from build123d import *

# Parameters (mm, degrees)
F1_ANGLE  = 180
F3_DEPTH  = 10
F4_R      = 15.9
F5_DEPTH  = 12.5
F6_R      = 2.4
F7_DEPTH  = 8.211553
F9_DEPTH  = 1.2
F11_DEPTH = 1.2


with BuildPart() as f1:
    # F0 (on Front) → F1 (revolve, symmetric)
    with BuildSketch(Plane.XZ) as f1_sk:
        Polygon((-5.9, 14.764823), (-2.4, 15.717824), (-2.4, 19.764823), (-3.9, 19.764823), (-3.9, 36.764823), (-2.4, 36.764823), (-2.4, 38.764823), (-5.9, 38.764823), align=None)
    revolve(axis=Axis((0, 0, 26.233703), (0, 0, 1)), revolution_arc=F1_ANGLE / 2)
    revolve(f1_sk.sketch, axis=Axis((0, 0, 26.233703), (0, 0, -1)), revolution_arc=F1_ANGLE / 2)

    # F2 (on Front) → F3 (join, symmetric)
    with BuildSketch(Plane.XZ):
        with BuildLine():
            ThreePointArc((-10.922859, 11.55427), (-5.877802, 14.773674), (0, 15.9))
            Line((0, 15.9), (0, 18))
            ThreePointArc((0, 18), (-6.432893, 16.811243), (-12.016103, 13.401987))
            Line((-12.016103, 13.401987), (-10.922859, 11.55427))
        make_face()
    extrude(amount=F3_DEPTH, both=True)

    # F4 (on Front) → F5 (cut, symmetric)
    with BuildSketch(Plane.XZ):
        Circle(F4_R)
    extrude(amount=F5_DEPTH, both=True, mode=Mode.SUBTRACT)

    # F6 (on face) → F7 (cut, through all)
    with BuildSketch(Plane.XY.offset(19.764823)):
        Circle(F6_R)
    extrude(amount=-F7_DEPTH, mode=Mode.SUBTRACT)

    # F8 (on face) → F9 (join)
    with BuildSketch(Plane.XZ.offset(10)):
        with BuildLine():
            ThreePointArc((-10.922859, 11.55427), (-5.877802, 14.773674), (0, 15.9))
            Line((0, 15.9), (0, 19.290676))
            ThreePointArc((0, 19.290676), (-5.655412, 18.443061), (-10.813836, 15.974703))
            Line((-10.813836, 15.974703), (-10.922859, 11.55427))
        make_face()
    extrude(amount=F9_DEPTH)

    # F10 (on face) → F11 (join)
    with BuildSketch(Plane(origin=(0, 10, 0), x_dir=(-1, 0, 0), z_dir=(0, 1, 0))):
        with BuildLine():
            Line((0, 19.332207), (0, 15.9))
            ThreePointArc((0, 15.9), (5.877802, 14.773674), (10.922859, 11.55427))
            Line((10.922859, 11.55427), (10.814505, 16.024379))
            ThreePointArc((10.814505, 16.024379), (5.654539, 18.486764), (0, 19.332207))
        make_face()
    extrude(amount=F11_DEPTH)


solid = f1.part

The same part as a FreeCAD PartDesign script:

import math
import FreeCAD as App
import Part
import Sketcher

doc = App.newDocument("Part")
params = doc.addObject("Spreadsheet::Sheet", "Params")
for row, (alias, value) in enumerate([
    ("sketch1_height", "17 mm"),
    ("sketch1_height2", "2 mm"),
    ("sketch1_height3", "24 mm"),
    ("sketch1_width", "1.5 mm"),
    ("sketch1_width2", "3.5 mm"),
    ("revolution_angle", "90 deg"),
    ("sketch2_height", "17 mm"),
    ("sketch2_height2", "2 mm"),
    ("sketch2_height3", "24 mm"),
    ("sketch2_width", "1.5 mm"),
    ("sketch2_width2", "3.5 mm"),
    ("revolution2_angle", "90 deg"),
    ("sketch3_radius", "15.900001 mm"),
    ("sketch3_height", "2.1 mm"),
    ("pad1_length", "20 mm"),
    ("sketch4_diameter", "31.8 mm"),
    ("pocket1_length", "25 mm"),
    ("sketch5_diameter", "4.8 mm"),
    ("sketch6_radius", "15.900001 mm"),
    ("pad2_length", "1.2 mm"),
    ("sketch7_radius", "15.900001 mm"),
    ("pad3_length", "1.2 mm"),
], start=1):
    params.set(f"A{row}", alias)
    params.set(f"B{row}", "=" + value)
    params.setAlias(f"B{row}", alias)

body = doc.addObject("PartDesign::Body", "Body")

# Sketch on XZ plane
sketch1 = body.newObject("Sketcher::SketchObject", "Sketch")
sketch1.AttachmentSupport = (doc.getObject("XZ_Plane"), [""])
sketch1.MapMode = "FlatFace"
sketch1.addGeometry([
    Part.LineSegment(App.Vector(-5.9, 14.764823, 0), App.Vector(-2.4, 15.717824, 0)),  # 0
    Part.LineSegment(App.Vector(-2.4, 15.717824, 0), App.Vector(-2.4, 19.764823, 0)),  # 1
    Part.LineSegment(App.Vector(-2.4, 19.764823, 0), App.Vector(-3.9, 19.764823, 0)),  # 2
    Part.LineSegment(App.Vector(-3.9, 19.764823, 0), App.Vector(-3.9, 36.764823, 0)),  # 3
    Part.LineSegment(App.Vector(-3.9, 36.764823, 0), App.Vector(-2.4, 36.764823, 0)),  # 4
    Part.LineSegment(App.Vector(-2.4, 36.764823, 0), App.Vector(-2.4, 38.764823, 0)),  # 5
    Part.LineSegment(App.Vector(-2.4, 38.764823, 0), App.Vector(-5.9, 38.764823, 0)),  # 6
    Part.LineSegment(App.Vector(-5.9, 38.764823, 0), App.Vector(-5.9, 14.764823, 0)),  # 7
], False)
sketch1.addConstraint([
    Sketcher.Constraint("Coincident", 0, 2, 1, 1),
    Sketcher.Constraint("Coincident", 1, 2, 2, 1),
    Sketcher.Constraint("Coincident", 2, 2, 3, 1),
    Sketcher.Constraint("Coincident", 3, 2, 4, 1),
    Sketcher.Constraint("Coincident", 4, 2, 5, 1),
    Sketcher.Constraint("Coincident", 5, 2, 6, 1),
    Sketcher.Constraint("Coincident", 6, 2, 7, 1),
    Sketcher.Constraint("Coincident", 7, 2, 0, 1),
    Sketcher.Constraint("Vertical", 1),
    Sketcher.Constraint("Horizontal", 2),
    Sketcher.Constraint("Vertical", 3),
    Sketcher.Constraint("Horizontal", 4),
    Sketcher.Constraint("Vertical", 5),
    Sketcher.Constraint("Horizontal", 6),
    Sketcher.Constraint("Vertical", 7),
    Sketcher.Constraint("Vertical", 1, 2, 4, 2),
    Sketcher.Constraint("DistanceY", 3, 1, 3, 2, 17.0),
    Sketcher.Constraint("DistanceY", 5, 1, 5, 2, 2.0),
    Sketcher.Constraint("DistanceY", 7, 2, 7, 1, 24.0),
    Sketcher.Constraint("DistanceX", 2, 2, 2, 1, 1.5),
    Sketcher.Constraint("DistanceX", 6, 2, 6, 1, 3.5),
    Sketcher.Constraint("DistanceX", 0, 2, -1, 1, 2.4),
    Sketcher.Constraint("DistanceY", 1, 1, 1, 2, 4.046999),
    Sketcher.Constraint("DistanceY", -1, 1, 0, 2, 15.717824),
])
sketch1.setExpression("Constraints[16]", "Params.sketch1_height")
sketch1.setExpression("Constraints[17]", "Params.sketch1_height2")
sketch1.setExpression("Constraints[18]", "Params.sketch1_height3")
sketch1.setExpression("Constraints[19]", "Params.sketch1_width")
sketch1.setExpression("Constraints[20]", "Params.sketch1_width2")
revolution = body.newObject("PartDesign::Revolution", "Revolution")
revolution.Profile = sketch1
revolution.ReferenceAxis = (sketch1, ["V_Axis"])
revolution.setExpression("Angle", "Params.revolution_angle")

# Sketch on XZ plane
sketch2 = body.newObject("Sketcher::SketchObject", "Sketch001")
sketch2.AttachmentSupport = (doc.getObject("XZ_Plane"), [""])
sketch2.MapMode = "FlatFace"
sketch2.addGeometry([
    Part.LineSegment(App.Vector(-5.9, 14.764823, 0), App.Vector(-2.4, 15.717824, 0)),  # 0
    Part.LineSegment(App.Vector(-2.4, 15.717824, 0), App.Vector(-2.4, 19.764823, 0)),  # 1
    Part.LineSegment(App.Vector(-2.4, 19.764823, 0), App.Vector(-3.9, 19.764823, 0)),  # 2
    Part.LineSegment(App.Vector(-3.9, 19.764823, 0), App.Vector(-3.9, 36.764823, 0)),  # 3
    Part.LineSegment(App.Vector(-3.9, 36.764823, 0), App.Vector(-2.4, 36.764823, 0)),  # 4
    Part.LineSegment(App.Vector(-2.4, 36.764823, 0), App.Vector(-2.4, 38.764823, 0)),  # 5
    Part.LineSegment(App.Vector(-2.4, 38.764823, 0), App.Vector(-5.9, 38.764823, 0)),  # 6
    Part.LineSegment(App.Vector(-5.9, 38.764823, 0), App.Vector(-5.9, 14.764823, 0)),  # 7
], False)
sketch2.addConstraint([
    Sketcher.Constraint("Coincident", 0, 2, 1, 1),
    Sketcher.Constraint("Coincident", 1, 2, 2, 1),
    Sketcher.Constraint("Coincident", 2, 2, 3, 1),
    Sketcher.Constraint("Coincident", 3, 2, 4, 1),
    Sketcher.Constraint("Coincident", 4, 2, 5, 1),
    Sketcher.Constraint("Coincident", 5, 2, 6, 1),
    Sketcher.Constraint("Coincident", 6, 2, 7, 1),
    Sketcher.Constraint("Coincident", 7, 2, 0, 1),
    Sketcher.Constraint("Vertical", 1),
    Sketcher.Constraint("Horizontal", 2),
    Sketcher.Constraint("Vertical", 3),
    Sketcher.Constraint("Horizontal", 4),
    Sketcher.Constraint("Vertical", 5),
    Sketcher.Constraint("Horizontal", 6),
    Sketcher.Constraint("Vertical", 7),
    Sketcher.Constraint("Vertical", 1, 2, 4, 2),
    Sketcher.Constraint("DistanceY", 3, 1, 3, 2, 17.0),
    Sketcher.Constraint("DistanceY", 5, 1, 5, 2, 2.0),
    Sketcher.Constraint("DistanceY", 7, 2, 7, 1, 24.0),
    Sketcher.Constraint("DistanceX", 2, 2, 2, 1, 1.5),
    Sketcher.Constraint("DistanceX", 6, 2, 6, 1, 3.5),
    Sketcher.Constraint("DistanceX", 0, 2, -1, 1, 2.4),
    Sketcher.Constraint("DistanceY", 1, 1, 1, 2, 4.046999),
    Sketcher.Constraint("DistanceY", -1, 1, 0, 2, 15.717824),
])
sketch2.setExpression("Constraints[16]", "Params.sketch2_height")
sketch2.setExpression("Constraints[17]", "Params.sketch2_height2")
sketch2.setExpression("Constraints[18]", "Params.sketch2_height3")
sketch2.setExpression("Constraints[19]", "Params.sketch2_width")
sketch2.setExpression("Constraints[20]", "Params.sketch2_width2")
revolution2 = body.newObject("PartDesign::Revolution", "Revolution001")
revolution2.Profile = sketch2
revolution2.ReferenceAxis = (sketch2, ["V_Axis"])
revolution2.setExpression("Angle", "Params.revolution2_angle")
revolution2.Reversed = True

# Sketch on XZ plane
sketch3 = body.newObject("Sketcher::SketchObject", "Sketch002")
sketch3.AttachmentSupport = (doc.getObject("XZ_Plane"), [""])
sketch3.MapMode = "FlatFace"
sketch3.addGeometry([
    Part.ArcOfCircle(Part.Circle(App.Vector(0, -0.000001, 0), App.Vector(0, 0, 1), 15.900001), math.radians(90.000001), math.radians(133.39091)),
    Part.LineSegment(App.Vector(0, 15.9, 0), App.Vector(0, 18, 0)),
    Part.ArcOfCircle(Part.Circle(App.Vector(-0.000001, 0.000004, 0), App.Vector(0, 0, 1), 17.999996), math.radians(89.999997), math.radians(131.879128)),
    Part.LineSegment(App.Vector(-12.016103, 13.401987, 0), App.Vector(-10.922859, 11.55427, 0)),
], False)
sketch3.addConstraint([
    Sketcher.Constraint("Coincident", 0, 1, 1, 1),
    Sketcher.Constraint("Coincident", 1, 2, 2, 1),
    Sketcher.Constraint("Coincident", 2, 2, 3, 1),
    Sketcher.Constraint("Coincident", 3, 2, 0, 2),
    Sketcher.Constraint("Vertical", 1),
    Sketcher.Constraint("Coincident", 0, 3, -1, 1),
    Sketcher.Constraint("Coincident", 2, 3, -1, 1),
    Sketcher.Constraint("PointOnObject", 0, 1, -2),
    Sketcher.Constraint("Radius", 0, 15.900001),
    Sketcher.Constraint("DistanceY", 1, 1, 1, 2, 2.1),
    Sketcher.Constraint("DistanceX", 2, 2, 2, 3, 12.016102),
    Sketcher.Constraint("DistanceX", 3, 2, -1, 1, 10.922859),
])
sketch3.setExpression("Constraints[8]", "Params.sketch3_radius")
sketch3.setExpression("Constraints[9]", "Params.sketch3_height")
pad1 = body.newObject("PartDesign::Pad", "Pad")
pad1.Profile = sketch3
pad1.setExpression("Length", "Params.pad1_length")
pad1.Midplane = True

# Sketch on XZ plane
sketch4 = body.newObject("Sketcher::SketchObject", "Sketch003")
sketch4.AttachmentSupport = (doc.getObject("XZ_Plane"), [""])
sketch4.MapMode = "FlatFace"
sketch4.addGeometry(Part.Circle(App.Vector(0, 0, 0), App.Vector(0, 0, 1), 15.9), False)
sketch4.addConstraint([
    Sketcher.Constraint("Coincident", 0, 3, -1, 1),
    Sketcher.Constraint("Diameter", 0, 31.8),
])
sketch4.setExpression("Constraints[1]", "Params.sketch4_diameter")
pocket1 = body.newObject("PartDesign::Pocket", "Pocket")
pocket1.Profile = sketch4
pocket1.setExpression("Length", "Params.pocket1_length")
pocket1.Midplane = True

# Sketch on XY plane
sketch5 = body.newObject("Sketcher::SketchObject", "Sketch004")
sketch5.AttachmentSupport = (doc.getObject("XY_Plane"), [""])
sketch5.MapMode = "FlatFace"
sketch5.AttachmentOffset = App.Placement(App.Vector(0, 0, 19.764823), App.Rotation())
sketch5.addGeometry(Part.Circle(App.Vector(0, 0, 0), App.Vector(0, 0, 1), 2.4), False)
sketch5.addConstraint([
    Sketcher.Constraint("Coincident", 0, 3, -1, 1),
    Sketcher.Constraint("Diameter", 0, 4.8),
])
sketch5.setExpression("Constraints[1]", "Params.sketch5_diameter")
pocket2 = body.newObject("PartDesign::Pocket", "Pocket001")
pocket2.Profile = sketch5
pocket2.Type = "ThroughAll"

# Sketch on XZ plane
sketch6 = body.newObject("Sketcher::SketchObject", "Sketch005")
sketch6.AttachmentSupport = (doc.getObject("XZ_Plane"), [""])
sketch6.MapMode = "FlatFace"
sketch6.AttachmentOffset = App.Placement(App.Vector(0, 0, 10), App.Rotation())
sketch6.addGeometry([
    Part.ArcOfCircle(Part.Circle(App.Vector(0, -0.000001, 0), App.Vector(0, 0, 1), 15.900001), math.radians(90.000001), math.radians(133.39091)),
    Part.LineSegment(App.Vector(0, 15.9, 0), App.Vector(0, 19.290676, 0)),
    Part.ArcOfCircle(Part.Circle(App.Vector(0, 0.000001, 0), App.Vector(0, 0, 1), 19.290675), math.radians(89.999999), math.radians(124.095448)),
    Part.LineSegment(App.Vector(-10.813836, 15.974703, 0), App.Vector(-10.922859, 11.55427, 0)),
], False)
sketch6.addConstraint([
    Sketcher.Constraint("Coincident", 0, 1, 1, 1),
    Sketcher.Constraint("Coincident", 1, 2, 2, 1),
    Sketcher.Constraint("Coincident", 2, 2, 3, 1),
    Sketcher.Constraint("Coincident", 3, 2, 0, 2),
    Sketcher.Constraint("Vertical", 1),
    Sketcher.Constraint("Coincident", 0, 3, -1, 1),
    Sketcher.Constraint("Coincident", 2, 3, -1, 1),
    Sketcher.Constraint("PointOnObject", 0, 1, -2),
    Sketcher.Constraint("Radius", 0, 15.900001),
    Sketcher.Constraint("Radius", 2, 19.290675),
    Sketcher.Constraint("DistanceX", 3, 2, -1, 1, 10.922859),
    Sketcher.Constraint("Distance", 3, 4.421777),
])
sketch6.setExpression("Constraints[8]", "Params.sketch6_radius")
pad2 = body.newObject("PartDesign::Pad", "Pad001")
pad2.Profile = sketch6
pad2.setExpression("Length", "Params.pad2_length")

# Sketch on XZ plane
sketch7 = body.newObject("Sketcher::SketchObject", "Sketch006")
sketch7.AttachmentSupport = (doc.getObject("XZ_Plane"), [""])
sketch7.MapMode = "FlatFace"
sketch7.AttachmentOffset = App.Placement(App.Vector(0, 0, -10), App.Rotation())
sketch7.addGeometry([
    Part.LineSegment(App.Vector(0, 19.332207, 0), App.Vector(0, 15.9, 0)),
    Part.ArcOfCircle(Part.Circle(App.Vector(0, -0.000001, 0), App.Vector(0, 0, 1), 15.900001), math.radians(90.000001), math.radians(133.39091)),
    Part.LineSegment(App.Vector(-10.922859, 11.55427, 0), App.Vector(-10.814505, 16.024379, 0)),
    Part.ArcOfCircle(Part.Circle(App.Vector(-0.000004, 0.000011, 0), App.Vector(0, 0, 1), 19.332196), math.radians(89.999988), math.radians(124.014567)),
], False)
sketch7.addConstraint([
    Sketcher.Constraint("Coincident", 0, 2, 1, 1),
    Sketcher.Constraint("Coincident", 1, 2, 2, 1),
    Sketcher.Constraint("Coincident", 2, 2, 3, 2),
    Sketcher.Constraint("Coincident", 3, 1, 0, 1),
    Sketcher.Constraint("Vertical", 0),
    Sketcher.Constraint("Coincident", 1, 3, -1, 1),
    Sketcher.Constraint("PointOnObject", 0, 2, -2),
    Sketcher.Constraint("Radius", 1, 15.900001),
    Sketcher.Constraint("Radius", 3, 19.332196),
    Sketcher.Constraint("DistanceX", 2, 2, 3, 3, 10.814501),
    Sketcher.Constraint("DistanceY", 0, 2, 0, 1, 3.432207),
    Sketcher.Constraint("DistanceX", 1, 2, -1, 1, 10.922859),
    Sketcher.Constraint("Distance", 2, 4.471422),
])
sketch7.setExpression("Constraints[7]", "Params.sketch7_radius")
pad3 = body.newObject("PartDesign::Pad", "Pad002")
pad3.Profile = sketch7
pad3.setExpression("Length", "Params.pad3_length")
pad3.Reversed = True

doc.recompute()
